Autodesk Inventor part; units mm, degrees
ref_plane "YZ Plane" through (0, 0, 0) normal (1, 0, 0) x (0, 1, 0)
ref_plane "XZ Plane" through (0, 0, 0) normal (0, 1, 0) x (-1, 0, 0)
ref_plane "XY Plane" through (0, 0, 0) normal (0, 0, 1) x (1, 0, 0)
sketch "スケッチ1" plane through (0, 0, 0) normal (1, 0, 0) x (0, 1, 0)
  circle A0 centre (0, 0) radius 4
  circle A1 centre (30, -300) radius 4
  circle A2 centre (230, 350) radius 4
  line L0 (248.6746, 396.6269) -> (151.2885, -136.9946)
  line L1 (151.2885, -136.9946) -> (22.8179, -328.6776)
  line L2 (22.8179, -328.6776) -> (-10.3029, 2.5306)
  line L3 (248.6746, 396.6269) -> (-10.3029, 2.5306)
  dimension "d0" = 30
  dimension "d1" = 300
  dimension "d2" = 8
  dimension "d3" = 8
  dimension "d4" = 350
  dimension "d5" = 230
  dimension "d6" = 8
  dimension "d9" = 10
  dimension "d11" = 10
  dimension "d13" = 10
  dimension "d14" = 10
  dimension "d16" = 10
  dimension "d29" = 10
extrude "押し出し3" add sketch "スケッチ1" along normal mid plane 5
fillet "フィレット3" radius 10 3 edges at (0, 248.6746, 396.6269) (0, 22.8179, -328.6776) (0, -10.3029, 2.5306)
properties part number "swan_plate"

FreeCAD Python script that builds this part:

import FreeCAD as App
import Part
import Sketcher
Q = App.Units.Quantity


def edges_at(feature, points):
    """Names of the edges that pass closest to the given points."""
    edges = feature.Shape.Edges
    near = lambda p: min(range(len(edges)), key=lambda i: edges[i].distToShape(Part.Vertex(*p))[0])
    return sorted({f"Edge{near(p) + 1}" for p in points})

doc = App.newDocument("Part")
body = doc.addObject("PartDesign::Body", "Body")

sketch1 = doc.addObject("Sketcher::SketchObject", "Sketch")
body.addObject(sketch1)
sketch1.AttachmentSupport = (doc.YZ_Plane, [""])
sketch1.MapMode = "FlatFace"
sketch1.addGeometry([
    Part.LineSegment(App.Vector(151.3, -137, 0), App.Vector(248.7, 396.6, 0)),
    Part.LineSegment(App.Vector(248.7, 396.6, 0), App.Vector(-10.3, 2.5, 0)),
    Part.LineSegment(App.Vector(-10.3, 2.5, 0), App.Vector(22.8, -328.7, 0)),
    Part.LineSegment(App.Vector(22.8, -328.7, 0), App.Vector(151.3, -137, 0)),
    Part.Circle(App.Vector(30, -300, 0), App.Vector(0, 0, 1), 4),
    Part.Circle(App.Vector(0, 0, 0), App.Vector(0, 0, 1), 4),
    Part.Circle(App.Vector(230, 350, 0), App.Vector(0, 0, 1), 4),
], False)
sketch1.addConstraint([
    Sketcher.Constraint("Coincident", 0, 2, 1, 1),
    Sketcher.Constraint("Coincident", 1, 2, 2, 1),
    Sketcher.Constraint("Coincident", 2, 2, 3, 1),
    Sketcher.Constraint("Coincident", 3, 2, 0, 1),
    Sketcher.Constraint("Coincident", 5, 3, -1, 1),
    Sketcher.Constraint("Equal", 4, 5),
    Sketcher.Constraint("Equal", 5, 6),
    Sketcher.Constraint("Diameter", 4, 8.0),
    Sketcher.Constraint("DistanceX", -1, 1, 4, 3, 30.0),
    Sketcher.Constraint("DistanceY", 4, 3, -1, 1, 300.0),
    Sketcher.Constraint("DistanceX", -1, 1, 6, 3, 230.0),
    Sketcher.Constraint("DistanceY", -1, 1, 6, 3, 350.0),
    Sketcher.Constraint("Angle", 1, Q("-123.3106 deg")),
    Sketcher.Constraint("Angle", 2, Q("-84.2894 deg")),
    Sketcher.Constraint("Angle", 3, Q("56.169 deg")),
    Sketcher.Constraint("Distance", 2, 332.86),
    Sketcher.Constraint("DistanceY", -1, 1, 0, 2, 396.627),
    Sketcher.Constraint("DistanceX", 1, 2, -1, 1, 10.303),
    Sketcher.Constraint("DistanceY", 2, 2, 3, 2, 191.683),
    Sketcher.Constraint("Distance", 0, 542.4352),
])
pad1 = doc.addObject("PartDesign::Pad", "Pad")
body.addObject(pad1)
pad1.Profile = sketch1
pad1.Length = 5
pad1.Midplane = True
doc.recompute()

fillet = doc.addObject("PartDesign::Fillet", "Fillet")
body.addObject(fillet)
fillet.Base = (pad1, edges_at(pad1, [(0, 248.675, 396.627), (0, 22.818, -328.678), (0, -10.303, 2.531)]))
fillet.Radius = 10

doc.recompute()
